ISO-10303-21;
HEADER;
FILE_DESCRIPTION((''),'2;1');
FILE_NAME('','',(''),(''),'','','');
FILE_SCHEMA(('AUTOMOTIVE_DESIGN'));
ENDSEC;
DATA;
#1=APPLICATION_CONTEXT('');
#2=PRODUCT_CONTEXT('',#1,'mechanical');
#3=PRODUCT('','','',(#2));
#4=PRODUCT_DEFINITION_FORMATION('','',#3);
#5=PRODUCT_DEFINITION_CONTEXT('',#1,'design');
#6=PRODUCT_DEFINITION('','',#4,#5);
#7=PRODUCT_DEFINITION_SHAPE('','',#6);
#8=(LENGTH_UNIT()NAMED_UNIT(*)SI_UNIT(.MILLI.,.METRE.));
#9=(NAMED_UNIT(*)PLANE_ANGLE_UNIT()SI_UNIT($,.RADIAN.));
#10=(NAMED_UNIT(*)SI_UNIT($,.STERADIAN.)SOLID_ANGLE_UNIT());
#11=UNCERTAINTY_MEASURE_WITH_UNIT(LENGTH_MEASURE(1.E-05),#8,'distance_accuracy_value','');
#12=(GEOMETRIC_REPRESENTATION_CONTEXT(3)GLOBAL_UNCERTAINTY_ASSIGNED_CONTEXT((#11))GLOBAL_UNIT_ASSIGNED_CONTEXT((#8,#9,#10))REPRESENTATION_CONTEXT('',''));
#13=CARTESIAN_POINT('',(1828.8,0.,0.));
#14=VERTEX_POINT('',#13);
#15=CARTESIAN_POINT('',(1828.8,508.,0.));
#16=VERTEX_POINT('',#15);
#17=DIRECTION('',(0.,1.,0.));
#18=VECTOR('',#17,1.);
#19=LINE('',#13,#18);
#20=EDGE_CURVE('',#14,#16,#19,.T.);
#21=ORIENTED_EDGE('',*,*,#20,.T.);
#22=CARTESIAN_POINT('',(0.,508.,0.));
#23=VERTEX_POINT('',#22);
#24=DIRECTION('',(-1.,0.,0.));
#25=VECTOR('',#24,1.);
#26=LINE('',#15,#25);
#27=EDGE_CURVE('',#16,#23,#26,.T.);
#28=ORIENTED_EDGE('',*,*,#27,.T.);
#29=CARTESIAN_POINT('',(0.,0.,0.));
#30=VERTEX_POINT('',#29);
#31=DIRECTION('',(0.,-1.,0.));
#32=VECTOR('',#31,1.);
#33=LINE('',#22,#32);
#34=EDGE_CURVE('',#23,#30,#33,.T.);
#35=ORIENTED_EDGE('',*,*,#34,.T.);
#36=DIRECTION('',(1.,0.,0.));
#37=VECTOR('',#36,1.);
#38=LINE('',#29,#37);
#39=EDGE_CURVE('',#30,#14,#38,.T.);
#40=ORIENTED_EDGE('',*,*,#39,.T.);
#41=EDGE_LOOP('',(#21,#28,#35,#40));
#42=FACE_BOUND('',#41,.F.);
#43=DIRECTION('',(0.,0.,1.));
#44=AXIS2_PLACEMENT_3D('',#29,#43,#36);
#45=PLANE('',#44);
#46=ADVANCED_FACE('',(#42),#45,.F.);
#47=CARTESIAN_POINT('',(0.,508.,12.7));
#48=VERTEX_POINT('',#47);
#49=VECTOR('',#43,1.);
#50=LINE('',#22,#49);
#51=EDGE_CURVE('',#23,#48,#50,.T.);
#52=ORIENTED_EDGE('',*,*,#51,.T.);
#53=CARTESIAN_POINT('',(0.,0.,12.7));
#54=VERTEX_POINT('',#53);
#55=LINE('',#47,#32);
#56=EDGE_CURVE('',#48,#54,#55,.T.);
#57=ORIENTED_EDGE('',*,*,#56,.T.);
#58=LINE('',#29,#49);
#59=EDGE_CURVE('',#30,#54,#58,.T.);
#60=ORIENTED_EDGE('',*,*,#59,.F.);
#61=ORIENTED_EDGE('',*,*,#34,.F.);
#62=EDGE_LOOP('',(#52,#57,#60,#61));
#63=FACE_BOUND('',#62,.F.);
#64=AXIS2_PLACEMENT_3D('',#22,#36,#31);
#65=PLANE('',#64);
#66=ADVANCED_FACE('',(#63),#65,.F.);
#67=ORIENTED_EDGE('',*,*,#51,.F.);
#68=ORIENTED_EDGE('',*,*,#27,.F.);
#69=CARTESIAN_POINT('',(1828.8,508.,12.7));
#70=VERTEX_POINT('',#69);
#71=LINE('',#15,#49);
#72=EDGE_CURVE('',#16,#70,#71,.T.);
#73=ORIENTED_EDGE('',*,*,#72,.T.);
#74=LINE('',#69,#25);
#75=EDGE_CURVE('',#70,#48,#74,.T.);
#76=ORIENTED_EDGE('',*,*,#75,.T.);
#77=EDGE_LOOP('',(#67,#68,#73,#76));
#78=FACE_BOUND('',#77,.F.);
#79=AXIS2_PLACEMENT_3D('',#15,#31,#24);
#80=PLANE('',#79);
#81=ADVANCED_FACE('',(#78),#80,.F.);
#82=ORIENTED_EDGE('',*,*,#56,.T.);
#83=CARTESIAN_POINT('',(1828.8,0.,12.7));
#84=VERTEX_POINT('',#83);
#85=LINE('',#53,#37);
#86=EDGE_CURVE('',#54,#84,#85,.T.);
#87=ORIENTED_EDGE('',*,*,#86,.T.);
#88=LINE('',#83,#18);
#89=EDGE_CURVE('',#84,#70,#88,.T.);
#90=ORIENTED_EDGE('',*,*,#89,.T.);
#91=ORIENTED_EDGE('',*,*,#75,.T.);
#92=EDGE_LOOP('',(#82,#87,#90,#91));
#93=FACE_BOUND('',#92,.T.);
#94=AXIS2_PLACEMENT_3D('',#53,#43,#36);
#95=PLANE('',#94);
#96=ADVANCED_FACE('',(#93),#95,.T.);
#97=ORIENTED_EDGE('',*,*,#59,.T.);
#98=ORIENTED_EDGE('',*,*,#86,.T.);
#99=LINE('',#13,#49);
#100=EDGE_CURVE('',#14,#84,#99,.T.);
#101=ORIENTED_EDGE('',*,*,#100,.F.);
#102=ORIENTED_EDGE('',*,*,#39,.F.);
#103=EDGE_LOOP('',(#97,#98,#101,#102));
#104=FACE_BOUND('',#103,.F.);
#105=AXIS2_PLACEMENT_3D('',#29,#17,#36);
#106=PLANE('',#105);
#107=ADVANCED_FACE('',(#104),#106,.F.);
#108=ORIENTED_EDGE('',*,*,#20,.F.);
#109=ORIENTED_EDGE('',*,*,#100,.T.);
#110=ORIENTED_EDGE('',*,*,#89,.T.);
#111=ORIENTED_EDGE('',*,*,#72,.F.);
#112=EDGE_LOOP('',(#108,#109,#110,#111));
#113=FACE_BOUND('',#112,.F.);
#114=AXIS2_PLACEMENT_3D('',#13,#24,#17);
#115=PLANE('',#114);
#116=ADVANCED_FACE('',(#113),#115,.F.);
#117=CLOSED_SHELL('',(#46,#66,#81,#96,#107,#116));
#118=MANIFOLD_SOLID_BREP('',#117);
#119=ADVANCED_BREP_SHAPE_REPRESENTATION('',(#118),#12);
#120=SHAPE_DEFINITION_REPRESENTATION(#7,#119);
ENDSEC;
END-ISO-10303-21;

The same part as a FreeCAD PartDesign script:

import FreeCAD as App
import Part
import Sketcher

V = App.Vector
Q = App.Units.Quantity

doc = App.newDocument("Part")
body = doc.addObject("PartDesign::Body", "Body")

# Sketch on XY plane
sketch1 = body.newObject("Sketcher::SketchObject", "Sketch")
sketch1.AttachmentSupport = (doc.getObject("XY_Plane"), [""])
sketch1.MapMode = "FlatFace"
sketch1.addGeometry(Part.LineSegment(V(0, 508, 0), V(0, 0, 0)), False)
sketch1.addGeometry(Part.LineSegment(V(0, 0, 0), V(1828.8, 0, 0)), False)
sketch1.addGeometry(Part.LineSegment(V(1828.8, 0, 0), V(1828.8, 508, 0)), False)
sketch1.addGeometry(Part.LineSegment(V(1828.8, 508, 0), V(0, 508, 0)), False)
sketch1.addConstraint(Sketcher.Constraint("Coincident", 0, 2, 1, 1))
sketch1.addConstraint(Sketcher.Constraint("Coincident", 1, 2, 2, 1))
sketch1.addConstraint(Sketcher.Constraint("Coincident", 2, 2, 3, 1))
sketch1.addConstraint(Sketcher.Constraint("Coincident", 3, 2, 0, 1))
sketch1.addConstraint(Sketcher.Constraint("Vertical", 0))
sketch1.addConstraint(Sketcher.Constraint("Horizontal", 1))
sketch1.addConstraint(Sketcher.Constraint("Vertical", 2))
sketch1.addConstraint(Sketcher.Constraint("Horizontal", 3))
sketch1.addConstraint(Sketcher.Constraint("Coincident", 0, 2, -1, 1))
sketch1.addConstraint(Sketcher.Constraint("DistanceX", 1, 1, 1, 2, Q("72 in")))
sketch1.addConstraint(Sketcher.Constraint("DistanceY", 0, 2, 0, 1, Q("20 in")))
pad1 = body.newObject("PartDesign::Pad", "Pad")
pad1.Profile = sketch1
pad1.Length = Q("0.5 in")

doc.recompute()
